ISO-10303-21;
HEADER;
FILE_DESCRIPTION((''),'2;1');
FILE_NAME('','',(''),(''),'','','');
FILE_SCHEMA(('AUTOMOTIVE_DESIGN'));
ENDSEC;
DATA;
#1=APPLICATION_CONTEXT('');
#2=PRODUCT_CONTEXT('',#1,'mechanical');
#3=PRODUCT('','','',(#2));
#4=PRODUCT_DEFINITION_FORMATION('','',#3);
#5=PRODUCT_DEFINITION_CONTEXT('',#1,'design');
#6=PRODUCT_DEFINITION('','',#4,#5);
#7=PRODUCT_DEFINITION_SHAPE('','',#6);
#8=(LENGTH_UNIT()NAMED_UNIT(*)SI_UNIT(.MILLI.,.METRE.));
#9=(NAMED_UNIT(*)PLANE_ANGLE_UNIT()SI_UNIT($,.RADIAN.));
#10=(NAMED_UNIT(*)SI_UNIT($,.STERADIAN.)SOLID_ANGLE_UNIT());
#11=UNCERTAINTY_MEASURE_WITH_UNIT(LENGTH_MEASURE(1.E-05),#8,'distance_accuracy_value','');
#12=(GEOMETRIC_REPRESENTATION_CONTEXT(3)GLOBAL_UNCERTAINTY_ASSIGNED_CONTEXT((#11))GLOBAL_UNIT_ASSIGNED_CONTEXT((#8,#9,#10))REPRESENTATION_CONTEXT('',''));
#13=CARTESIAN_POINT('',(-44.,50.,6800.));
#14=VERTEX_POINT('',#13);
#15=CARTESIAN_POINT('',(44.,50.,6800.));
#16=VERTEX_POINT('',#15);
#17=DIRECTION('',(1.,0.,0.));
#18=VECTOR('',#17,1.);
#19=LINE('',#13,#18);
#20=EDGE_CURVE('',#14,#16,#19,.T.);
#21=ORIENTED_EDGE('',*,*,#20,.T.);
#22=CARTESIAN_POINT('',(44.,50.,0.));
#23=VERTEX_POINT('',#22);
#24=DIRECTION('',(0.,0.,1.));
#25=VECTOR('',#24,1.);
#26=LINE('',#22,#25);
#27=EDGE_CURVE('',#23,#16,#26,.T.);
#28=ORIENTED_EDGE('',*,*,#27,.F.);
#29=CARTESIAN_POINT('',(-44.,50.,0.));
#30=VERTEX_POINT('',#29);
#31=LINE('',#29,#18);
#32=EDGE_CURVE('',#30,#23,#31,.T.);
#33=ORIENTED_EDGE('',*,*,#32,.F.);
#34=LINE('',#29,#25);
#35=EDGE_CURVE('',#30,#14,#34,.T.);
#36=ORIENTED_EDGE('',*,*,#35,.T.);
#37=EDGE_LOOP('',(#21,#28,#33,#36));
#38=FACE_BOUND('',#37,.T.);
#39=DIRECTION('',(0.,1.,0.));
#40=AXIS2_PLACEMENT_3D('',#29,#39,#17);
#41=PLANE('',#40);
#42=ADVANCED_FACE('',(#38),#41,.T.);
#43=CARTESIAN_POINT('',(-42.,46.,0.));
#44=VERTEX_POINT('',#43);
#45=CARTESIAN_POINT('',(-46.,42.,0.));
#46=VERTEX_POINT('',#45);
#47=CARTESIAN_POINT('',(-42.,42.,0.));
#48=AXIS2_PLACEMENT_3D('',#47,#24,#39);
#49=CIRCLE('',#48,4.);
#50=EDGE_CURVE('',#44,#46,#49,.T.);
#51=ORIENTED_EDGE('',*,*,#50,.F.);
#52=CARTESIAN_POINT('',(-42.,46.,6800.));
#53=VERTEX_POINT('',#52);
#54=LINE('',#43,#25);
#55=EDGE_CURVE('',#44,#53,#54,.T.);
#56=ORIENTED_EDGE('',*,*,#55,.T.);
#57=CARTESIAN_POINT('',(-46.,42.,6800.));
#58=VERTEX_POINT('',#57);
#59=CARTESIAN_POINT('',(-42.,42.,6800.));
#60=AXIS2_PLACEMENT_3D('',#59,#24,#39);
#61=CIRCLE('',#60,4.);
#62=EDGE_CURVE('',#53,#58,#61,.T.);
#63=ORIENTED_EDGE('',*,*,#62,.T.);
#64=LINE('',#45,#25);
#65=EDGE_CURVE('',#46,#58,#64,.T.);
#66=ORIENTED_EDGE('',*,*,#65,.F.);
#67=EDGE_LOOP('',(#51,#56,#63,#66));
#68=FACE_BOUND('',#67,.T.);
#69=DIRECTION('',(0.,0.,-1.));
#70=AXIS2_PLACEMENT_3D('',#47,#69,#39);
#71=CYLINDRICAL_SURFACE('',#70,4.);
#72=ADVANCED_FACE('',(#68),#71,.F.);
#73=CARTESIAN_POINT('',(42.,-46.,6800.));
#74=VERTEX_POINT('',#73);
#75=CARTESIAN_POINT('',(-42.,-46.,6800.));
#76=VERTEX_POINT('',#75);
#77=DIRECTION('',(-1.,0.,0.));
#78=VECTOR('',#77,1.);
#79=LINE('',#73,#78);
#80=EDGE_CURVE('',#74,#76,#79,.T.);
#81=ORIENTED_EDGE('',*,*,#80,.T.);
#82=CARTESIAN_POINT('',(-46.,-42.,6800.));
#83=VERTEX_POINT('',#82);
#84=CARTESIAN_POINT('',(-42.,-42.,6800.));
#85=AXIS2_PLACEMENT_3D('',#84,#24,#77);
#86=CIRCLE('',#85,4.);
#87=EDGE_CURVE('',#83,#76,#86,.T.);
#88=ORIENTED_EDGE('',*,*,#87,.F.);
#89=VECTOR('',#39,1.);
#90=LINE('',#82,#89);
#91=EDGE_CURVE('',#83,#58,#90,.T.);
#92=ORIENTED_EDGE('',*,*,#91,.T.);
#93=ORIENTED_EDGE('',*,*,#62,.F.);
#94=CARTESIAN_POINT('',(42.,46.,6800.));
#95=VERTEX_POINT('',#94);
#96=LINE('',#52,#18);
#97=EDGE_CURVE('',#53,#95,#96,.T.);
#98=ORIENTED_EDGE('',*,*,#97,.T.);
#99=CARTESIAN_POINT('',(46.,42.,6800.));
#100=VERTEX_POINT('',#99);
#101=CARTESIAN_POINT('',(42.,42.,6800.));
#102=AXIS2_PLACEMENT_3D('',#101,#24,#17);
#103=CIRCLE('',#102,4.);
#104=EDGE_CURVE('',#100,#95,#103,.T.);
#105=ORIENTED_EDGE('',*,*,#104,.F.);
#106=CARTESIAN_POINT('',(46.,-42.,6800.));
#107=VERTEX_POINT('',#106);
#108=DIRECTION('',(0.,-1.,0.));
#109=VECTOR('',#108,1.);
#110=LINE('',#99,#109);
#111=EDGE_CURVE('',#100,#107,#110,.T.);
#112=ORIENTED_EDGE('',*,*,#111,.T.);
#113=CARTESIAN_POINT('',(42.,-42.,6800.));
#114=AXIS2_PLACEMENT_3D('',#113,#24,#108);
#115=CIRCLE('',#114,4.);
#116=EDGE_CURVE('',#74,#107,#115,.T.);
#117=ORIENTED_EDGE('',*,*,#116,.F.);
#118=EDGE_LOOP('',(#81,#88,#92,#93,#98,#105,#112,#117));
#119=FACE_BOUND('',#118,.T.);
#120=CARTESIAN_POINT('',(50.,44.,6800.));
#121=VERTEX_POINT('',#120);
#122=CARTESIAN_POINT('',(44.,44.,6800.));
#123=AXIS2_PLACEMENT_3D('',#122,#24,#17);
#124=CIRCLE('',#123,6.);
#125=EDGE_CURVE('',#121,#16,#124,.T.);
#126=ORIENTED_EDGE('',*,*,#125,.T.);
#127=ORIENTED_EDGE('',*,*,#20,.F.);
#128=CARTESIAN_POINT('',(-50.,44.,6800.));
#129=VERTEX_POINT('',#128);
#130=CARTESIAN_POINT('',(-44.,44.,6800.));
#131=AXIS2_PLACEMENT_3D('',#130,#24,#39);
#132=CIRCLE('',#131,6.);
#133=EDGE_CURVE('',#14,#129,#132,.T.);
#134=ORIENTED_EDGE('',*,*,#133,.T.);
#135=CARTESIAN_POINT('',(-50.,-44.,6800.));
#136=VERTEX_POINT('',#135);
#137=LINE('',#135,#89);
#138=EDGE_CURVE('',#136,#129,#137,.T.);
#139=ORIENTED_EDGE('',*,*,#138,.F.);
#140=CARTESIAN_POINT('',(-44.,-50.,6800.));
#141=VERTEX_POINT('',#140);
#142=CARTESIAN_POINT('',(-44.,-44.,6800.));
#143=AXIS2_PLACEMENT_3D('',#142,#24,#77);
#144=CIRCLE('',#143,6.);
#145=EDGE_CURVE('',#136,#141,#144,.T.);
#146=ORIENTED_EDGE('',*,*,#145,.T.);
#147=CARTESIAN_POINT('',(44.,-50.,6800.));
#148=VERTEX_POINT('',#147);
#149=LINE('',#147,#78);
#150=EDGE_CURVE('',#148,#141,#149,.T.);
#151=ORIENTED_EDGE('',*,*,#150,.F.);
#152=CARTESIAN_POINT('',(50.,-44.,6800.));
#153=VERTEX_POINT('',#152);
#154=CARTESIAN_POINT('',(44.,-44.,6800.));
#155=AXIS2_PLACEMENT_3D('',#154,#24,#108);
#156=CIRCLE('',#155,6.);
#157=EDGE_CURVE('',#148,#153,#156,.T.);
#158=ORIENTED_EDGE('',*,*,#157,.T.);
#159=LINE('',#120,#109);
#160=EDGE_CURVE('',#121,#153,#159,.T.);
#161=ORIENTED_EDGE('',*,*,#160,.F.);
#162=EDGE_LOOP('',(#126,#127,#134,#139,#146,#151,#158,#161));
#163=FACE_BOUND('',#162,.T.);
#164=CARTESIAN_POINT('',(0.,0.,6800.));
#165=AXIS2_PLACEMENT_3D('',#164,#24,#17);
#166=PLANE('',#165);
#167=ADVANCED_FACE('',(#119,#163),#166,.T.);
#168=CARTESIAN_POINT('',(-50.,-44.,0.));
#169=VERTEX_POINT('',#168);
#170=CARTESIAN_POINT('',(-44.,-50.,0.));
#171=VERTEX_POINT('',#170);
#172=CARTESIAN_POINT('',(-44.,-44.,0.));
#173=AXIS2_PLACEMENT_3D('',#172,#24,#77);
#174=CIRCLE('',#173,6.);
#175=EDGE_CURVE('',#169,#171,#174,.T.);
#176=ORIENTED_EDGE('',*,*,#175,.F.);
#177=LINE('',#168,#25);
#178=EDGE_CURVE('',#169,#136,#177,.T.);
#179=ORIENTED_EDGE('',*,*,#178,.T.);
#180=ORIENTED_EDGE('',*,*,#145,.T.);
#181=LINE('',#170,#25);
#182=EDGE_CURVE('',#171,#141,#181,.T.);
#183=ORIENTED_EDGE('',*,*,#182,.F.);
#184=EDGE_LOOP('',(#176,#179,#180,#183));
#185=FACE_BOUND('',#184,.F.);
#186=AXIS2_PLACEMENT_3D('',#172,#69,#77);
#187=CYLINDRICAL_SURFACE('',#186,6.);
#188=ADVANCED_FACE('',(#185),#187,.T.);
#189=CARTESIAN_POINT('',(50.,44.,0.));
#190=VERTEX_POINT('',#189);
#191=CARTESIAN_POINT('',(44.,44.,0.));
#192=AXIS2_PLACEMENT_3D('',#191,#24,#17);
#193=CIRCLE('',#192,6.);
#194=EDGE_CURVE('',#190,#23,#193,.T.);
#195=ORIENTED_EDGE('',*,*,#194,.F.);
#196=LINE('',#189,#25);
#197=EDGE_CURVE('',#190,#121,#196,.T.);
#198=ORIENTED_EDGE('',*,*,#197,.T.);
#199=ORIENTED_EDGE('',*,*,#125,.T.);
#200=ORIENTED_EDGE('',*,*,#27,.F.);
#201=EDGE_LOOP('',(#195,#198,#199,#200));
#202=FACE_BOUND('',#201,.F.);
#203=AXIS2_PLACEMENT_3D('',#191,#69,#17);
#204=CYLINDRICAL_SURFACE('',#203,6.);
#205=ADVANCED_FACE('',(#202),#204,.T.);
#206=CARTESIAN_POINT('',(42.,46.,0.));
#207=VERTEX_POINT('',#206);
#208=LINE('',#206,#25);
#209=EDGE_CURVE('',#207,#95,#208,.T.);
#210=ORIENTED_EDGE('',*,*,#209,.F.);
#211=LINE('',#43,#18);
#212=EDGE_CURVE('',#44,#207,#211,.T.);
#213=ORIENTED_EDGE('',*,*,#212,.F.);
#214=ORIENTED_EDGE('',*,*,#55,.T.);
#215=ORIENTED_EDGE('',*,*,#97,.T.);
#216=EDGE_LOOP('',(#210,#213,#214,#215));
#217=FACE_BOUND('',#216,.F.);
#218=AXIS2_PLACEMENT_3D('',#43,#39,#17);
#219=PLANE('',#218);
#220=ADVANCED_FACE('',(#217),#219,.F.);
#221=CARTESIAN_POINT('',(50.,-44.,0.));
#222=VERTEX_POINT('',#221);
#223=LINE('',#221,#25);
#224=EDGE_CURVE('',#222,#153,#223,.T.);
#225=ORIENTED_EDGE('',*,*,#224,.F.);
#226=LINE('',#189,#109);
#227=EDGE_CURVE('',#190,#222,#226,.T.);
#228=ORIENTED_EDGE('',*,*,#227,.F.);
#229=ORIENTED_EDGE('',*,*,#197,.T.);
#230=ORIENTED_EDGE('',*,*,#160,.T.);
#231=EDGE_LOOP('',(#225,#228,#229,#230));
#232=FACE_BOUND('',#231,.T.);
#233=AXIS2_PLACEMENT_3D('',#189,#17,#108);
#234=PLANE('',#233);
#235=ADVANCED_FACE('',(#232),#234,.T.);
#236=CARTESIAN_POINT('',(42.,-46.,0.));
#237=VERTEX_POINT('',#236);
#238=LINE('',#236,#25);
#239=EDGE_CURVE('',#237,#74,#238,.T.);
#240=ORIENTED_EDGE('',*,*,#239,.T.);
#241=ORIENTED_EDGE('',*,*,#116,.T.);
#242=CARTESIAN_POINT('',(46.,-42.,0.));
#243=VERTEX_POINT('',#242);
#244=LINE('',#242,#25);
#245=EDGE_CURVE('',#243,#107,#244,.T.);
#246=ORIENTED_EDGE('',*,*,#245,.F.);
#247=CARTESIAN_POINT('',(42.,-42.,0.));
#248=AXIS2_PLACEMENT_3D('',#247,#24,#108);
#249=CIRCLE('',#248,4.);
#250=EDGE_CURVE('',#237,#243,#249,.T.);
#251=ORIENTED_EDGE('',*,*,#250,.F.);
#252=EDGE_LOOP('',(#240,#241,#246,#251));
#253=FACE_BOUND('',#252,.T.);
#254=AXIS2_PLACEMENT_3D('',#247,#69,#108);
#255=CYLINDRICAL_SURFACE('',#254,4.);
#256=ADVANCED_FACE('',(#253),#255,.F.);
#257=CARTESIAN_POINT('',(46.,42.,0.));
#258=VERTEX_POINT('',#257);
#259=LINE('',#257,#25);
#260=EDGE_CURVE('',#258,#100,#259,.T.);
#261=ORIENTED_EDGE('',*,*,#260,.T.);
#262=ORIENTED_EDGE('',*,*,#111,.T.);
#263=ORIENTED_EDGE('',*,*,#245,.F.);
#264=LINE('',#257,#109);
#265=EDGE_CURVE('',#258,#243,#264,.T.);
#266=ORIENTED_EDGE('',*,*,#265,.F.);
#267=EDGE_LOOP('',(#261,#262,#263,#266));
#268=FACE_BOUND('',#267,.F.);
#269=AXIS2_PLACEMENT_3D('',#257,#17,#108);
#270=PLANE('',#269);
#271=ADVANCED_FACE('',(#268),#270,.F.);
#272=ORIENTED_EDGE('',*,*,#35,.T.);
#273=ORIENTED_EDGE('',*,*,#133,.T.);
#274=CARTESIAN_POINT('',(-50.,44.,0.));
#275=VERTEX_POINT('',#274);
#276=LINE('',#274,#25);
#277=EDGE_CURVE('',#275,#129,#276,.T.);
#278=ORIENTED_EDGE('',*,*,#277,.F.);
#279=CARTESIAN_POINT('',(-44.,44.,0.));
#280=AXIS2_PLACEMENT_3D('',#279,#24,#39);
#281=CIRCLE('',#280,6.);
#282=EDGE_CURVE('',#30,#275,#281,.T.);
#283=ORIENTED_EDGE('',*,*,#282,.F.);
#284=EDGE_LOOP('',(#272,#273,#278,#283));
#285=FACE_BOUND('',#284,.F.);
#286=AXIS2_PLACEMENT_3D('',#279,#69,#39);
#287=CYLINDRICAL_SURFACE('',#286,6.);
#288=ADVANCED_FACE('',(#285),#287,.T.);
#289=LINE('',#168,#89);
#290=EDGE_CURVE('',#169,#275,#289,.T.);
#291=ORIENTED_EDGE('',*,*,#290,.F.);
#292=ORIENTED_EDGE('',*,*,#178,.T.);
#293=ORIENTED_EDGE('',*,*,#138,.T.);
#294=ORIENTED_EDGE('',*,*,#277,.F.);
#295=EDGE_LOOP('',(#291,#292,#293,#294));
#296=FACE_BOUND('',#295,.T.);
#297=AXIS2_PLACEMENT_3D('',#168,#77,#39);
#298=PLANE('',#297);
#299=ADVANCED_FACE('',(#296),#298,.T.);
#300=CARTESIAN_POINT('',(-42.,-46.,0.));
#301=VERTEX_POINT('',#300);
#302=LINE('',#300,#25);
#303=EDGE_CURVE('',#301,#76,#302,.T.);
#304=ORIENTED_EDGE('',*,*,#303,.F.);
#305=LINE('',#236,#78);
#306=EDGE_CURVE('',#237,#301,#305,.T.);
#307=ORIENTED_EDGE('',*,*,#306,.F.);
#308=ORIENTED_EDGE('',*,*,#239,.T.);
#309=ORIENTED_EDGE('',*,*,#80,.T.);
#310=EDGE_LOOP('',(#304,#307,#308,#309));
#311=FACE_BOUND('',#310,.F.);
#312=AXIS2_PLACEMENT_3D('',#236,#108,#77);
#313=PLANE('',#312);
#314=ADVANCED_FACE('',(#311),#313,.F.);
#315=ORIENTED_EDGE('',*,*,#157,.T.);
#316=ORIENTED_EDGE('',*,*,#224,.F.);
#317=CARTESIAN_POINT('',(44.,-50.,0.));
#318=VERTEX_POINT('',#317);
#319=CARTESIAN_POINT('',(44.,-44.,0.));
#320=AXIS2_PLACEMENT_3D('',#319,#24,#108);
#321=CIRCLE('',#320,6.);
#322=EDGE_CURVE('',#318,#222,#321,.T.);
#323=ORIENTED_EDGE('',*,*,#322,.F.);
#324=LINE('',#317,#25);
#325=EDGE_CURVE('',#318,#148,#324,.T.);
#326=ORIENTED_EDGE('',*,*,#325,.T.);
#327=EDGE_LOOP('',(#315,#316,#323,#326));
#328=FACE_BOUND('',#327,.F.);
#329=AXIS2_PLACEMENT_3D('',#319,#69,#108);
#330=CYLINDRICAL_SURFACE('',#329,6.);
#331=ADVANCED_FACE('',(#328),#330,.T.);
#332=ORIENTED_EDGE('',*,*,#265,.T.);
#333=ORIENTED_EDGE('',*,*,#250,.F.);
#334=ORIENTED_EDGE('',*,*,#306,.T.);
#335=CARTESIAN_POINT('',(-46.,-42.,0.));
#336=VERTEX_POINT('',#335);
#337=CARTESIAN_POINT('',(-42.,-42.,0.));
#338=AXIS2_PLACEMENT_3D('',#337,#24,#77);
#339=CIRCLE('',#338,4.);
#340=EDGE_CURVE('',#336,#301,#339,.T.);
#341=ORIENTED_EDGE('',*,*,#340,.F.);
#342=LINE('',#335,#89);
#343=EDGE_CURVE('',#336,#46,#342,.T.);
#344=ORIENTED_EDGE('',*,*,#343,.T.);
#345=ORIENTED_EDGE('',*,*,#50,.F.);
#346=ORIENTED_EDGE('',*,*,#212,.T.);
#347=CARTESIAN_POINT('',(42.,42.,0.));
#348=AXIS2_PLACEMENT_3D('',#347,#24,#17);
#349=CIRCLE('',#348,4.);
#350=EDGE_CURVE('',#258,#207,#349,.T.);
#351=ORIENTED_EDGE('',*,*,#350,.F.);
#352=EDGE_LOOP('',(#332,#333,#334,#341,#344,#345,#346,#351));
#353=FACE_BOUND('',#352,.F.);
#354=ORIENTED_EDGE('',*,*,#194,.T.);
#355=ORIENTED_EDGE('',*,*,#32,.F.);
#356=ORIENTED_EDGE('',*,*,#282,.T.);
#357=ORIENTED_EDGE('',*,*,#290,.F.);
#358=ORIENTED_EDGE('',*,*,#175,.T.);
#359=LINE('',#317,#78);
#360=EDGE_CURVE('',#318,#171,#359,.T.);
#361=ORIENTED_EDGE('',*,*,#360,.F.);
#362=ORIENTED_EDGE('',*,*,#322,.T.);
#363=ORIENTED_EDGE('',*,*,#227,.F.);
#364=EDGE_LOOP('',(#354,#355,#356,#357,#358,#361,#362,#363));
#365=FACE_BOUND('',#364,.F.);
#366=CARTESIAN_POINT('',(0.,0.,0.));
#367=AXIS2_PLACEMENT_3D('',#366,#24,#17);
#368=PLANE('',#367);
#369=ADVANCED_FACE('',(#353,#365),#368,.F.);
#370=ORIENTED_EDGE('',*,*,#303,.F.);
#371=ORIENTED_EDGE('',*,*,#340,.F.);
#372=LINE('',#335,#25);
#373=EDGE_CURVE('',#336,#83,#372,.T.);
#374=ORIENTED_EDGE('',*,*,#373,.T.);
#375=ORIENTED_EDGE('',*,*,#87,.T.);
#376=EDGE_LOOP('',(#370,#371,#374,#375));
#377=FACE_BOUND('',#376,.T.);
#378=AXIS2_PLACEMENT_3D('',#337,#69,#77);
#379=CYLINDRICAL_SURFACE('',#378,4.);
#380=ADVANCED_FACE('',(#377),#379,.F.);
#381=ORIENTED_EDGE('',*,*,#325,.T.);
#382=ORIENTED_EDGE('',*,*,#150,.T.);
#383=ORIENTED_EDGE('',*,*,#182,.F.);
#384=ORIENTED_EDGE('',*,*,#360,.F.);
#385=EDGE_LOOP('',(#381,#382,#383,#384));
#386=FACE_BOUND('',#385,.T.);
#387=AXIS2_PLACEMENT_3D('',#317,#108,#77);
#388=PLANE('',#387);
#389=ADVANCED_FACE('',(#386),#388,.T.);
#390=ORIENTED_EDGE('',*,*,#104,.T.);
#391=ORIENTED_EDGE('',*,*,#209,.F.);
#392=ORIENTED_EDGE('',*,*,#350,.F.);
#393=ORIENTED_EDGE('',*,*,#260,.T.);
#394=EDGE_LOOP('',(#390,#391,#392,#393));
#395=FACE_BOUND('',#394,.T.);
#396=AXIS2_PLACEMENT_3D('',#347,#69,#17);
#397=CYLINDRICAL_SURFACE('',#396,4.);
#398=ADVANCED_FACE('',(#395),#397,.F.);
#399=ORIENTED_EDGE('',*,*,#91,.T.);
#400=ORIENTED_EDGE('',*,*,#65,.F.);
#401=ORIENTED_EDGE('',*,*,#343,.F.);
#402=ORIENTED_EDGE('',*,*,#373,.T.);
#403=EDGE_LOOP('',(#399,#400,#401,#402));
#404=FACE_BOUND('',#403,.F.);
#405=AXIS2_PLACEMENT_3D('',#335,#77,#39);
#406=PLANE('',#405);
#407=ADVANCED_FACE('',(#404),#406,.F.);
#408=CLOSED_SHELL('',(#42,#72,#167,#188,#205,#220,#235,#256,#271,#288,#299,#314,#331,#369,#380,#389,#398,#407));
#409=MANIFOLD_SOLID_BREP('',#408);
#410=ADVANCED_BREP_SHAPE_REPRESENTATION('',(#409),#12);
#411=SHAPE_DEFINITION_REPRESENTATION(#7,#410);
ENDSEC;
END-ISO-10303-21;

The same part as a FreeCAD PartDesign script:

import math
import FreeCAD as App
import Part
import Sketcher

doc = App.newDocument("Part")
body = doc.addObject("PartDesign::Body", "Body")

sketch1 = doc.addObject("Sketcher::SketchObject", "Sketch")
body.addObject(sketch1)
sketch1.AttachmentSupport = (doc.XY_Plane, [""])
sketch1.MapMode = "FlatFace"
sketch1.addGeometry([
    Part.LineSegment(App.Vector(-50, 44, 0), App.Vector(-50, -44, 0)),
    Part.ArcOfCircle(Part.Circle(App.Vector(-44, -44, 0), App.Vector(0, 0, 1), 6), math.radians(180), math.radians(270)),
    Part.LineSegment(App.Vector(-44, -50, 0), App.Vector(44, -50, 0)),
    Part.ArcOfCircle(Part.Circle(App.Vector(44, -44, 0), App.Vector(0, 0, 1), 6), math.radians(-90), math.radians(0)),
    Part.LineSegment(App.Vector(50, -44, 0), App.Vector(50, 44, 0)),
    Part.ArcOfCircle(Part.Circle(App.Vector(44, 44, 0), App.Vector(0, 0, 1), 6), math.radians(0), math.radians(90)),
    Part.LineSegment(App.Vector(44, 50, 0), App.Vector(-44, 50, 0)),
    Part.ArcOfCircle(Part.Circle(App.Vector(-44, 44, 0), App.Vector(0, 0, 1), 6), math.radians(90), math.radians(180)),
    Part.ArcOfCircle(Part.Circle(App.Vector(-42, 42, 0), App.Vector(0, 0, 1), 4), math.radians(90), math.radians(180)),
    Part.LineSegment(App.Vector(-42, 46, 0), App.Vector(42, 46, 0)),
    Part.ArcOfCircle(Part.Circle(App.Vector(42, 42, 0), App.Vector(0, 0, 1), 4), math.radians(0), math.radians(90)),
    Part.LineSegment(App.Vector(46, 42, 0), App.Vector(46, -42, 0)),
    Part.ArcOfCircle(Part.Circle(App.Vector(42, -42, 0), App.Vector(0, 0, 1), 4), math.radians(-90), math.radians(0)),
    Part.LineSegment(App.Vector(42, -46, 0), App.Vector(-42, -46, 0)),
    Part.ArcOfCircle(Part.Circle(App.Vector(-42, -42, 0), App.Vector(0, 0, 1), 4), math.radians(180), math.radians(270)),
    Part.LineSegment(App.Vector(-46, -42, 0), App.Vector(-46, 42, 0)),
], False)
sketch1.addConstraint([
    Sketcher.Constraint("Tangent", 0, 2, 1, 1),
    Sketcher.Constraint("Tangent", 1, 2, 2, 1),
    Sketcher.Constraint("Tangent", 2, 2, 3, 1),
    Sketcher.Constraint("Tangent", 3, 2, 4, 1),
    Sketcher.Constraint("Tangent", 4, 2, 5, 1),
    Sketcher.Constraint("Tangent", 5, 2, 6, 1),
    Sketcher.Constraint("Tangent", 6, 2, 7, 1),
    Sketcher.Constraint("Tangent", 7, 2, 0, 1),
    Sketcher.Constraint("Tangent", 8, 1, 9, 1),
    Sketcher.Constraint("Tangent", 9, 2, 10, 2),
    Sketcher.Constraint("Tangent", 10, 1, 11, 1),
    Sketcher.Constraint("Tangent", 11, 2, 12, 2),
    Sketcher.Constraint("Tangent", 12, 1, 13, 1),
    Sketcher.Constraint("Tangent", 13, 2, 14, 2),
    Sketcher.Constraint("Tangent", 14, 1, 15, 1),
    Sketcher.Constraint("Tangent", 15, 2, 8, 2),
    Sketcher.Constraint("Vertical", 0),
    Sketcher.Constraint("Horizontal", 2),
    Sketcher.Constraint("Vertical", 4),
    Sketcher.Constraint("Horizontal", 6),
    Sketcher.Constraint("Horizontal", 9),
    Sketcher.Constraint("Vertical", 11),
    Sketcher.Constraint("Horizontal", 13),
    Sketcher.Constraint("Vertical", 15),
    Sketcher.Constraint("Equal", 1, 3),
    Sketcher.Constraint("Equal", 3, 5),
    Sketcher.Constraint("Equal", 5, 7),
    Sketcher.Constraint("Equal", 8, 10),
    Sketcher.Constraint("Equal", 10, 12),
    Sketcher.Constraint("Equal", 12, 14),
    Sketcher.Constraint("Symmetric", 1, 3, 5, 3, -1, 1),
    Sketcher.Constraint("Symmetric", 8, 3, 12, 3, -1, 1),
    Sketcher.Constraint("Equal", 6, 0),
    Sketcher.Constraint("Equal", 13, 11),
    Sketcher.Constraint("Radius", 1, 6.0),
    Sketcher.Constraint("Radius", 8, 4.0),
    Sketcher.Constraint("DistanceX", 0, 2, -1, 1, 50.0),
    Sketcher.Constraint("DistanceY", 8, 1, 6, 2, 4.0),
])
pad1 = doc.addObject("PartDesign::Pad", "Pad")
body.addObject(pad1)
pad1.Profile = sketch1
pad1.Length = 6800

doc.recompute()
